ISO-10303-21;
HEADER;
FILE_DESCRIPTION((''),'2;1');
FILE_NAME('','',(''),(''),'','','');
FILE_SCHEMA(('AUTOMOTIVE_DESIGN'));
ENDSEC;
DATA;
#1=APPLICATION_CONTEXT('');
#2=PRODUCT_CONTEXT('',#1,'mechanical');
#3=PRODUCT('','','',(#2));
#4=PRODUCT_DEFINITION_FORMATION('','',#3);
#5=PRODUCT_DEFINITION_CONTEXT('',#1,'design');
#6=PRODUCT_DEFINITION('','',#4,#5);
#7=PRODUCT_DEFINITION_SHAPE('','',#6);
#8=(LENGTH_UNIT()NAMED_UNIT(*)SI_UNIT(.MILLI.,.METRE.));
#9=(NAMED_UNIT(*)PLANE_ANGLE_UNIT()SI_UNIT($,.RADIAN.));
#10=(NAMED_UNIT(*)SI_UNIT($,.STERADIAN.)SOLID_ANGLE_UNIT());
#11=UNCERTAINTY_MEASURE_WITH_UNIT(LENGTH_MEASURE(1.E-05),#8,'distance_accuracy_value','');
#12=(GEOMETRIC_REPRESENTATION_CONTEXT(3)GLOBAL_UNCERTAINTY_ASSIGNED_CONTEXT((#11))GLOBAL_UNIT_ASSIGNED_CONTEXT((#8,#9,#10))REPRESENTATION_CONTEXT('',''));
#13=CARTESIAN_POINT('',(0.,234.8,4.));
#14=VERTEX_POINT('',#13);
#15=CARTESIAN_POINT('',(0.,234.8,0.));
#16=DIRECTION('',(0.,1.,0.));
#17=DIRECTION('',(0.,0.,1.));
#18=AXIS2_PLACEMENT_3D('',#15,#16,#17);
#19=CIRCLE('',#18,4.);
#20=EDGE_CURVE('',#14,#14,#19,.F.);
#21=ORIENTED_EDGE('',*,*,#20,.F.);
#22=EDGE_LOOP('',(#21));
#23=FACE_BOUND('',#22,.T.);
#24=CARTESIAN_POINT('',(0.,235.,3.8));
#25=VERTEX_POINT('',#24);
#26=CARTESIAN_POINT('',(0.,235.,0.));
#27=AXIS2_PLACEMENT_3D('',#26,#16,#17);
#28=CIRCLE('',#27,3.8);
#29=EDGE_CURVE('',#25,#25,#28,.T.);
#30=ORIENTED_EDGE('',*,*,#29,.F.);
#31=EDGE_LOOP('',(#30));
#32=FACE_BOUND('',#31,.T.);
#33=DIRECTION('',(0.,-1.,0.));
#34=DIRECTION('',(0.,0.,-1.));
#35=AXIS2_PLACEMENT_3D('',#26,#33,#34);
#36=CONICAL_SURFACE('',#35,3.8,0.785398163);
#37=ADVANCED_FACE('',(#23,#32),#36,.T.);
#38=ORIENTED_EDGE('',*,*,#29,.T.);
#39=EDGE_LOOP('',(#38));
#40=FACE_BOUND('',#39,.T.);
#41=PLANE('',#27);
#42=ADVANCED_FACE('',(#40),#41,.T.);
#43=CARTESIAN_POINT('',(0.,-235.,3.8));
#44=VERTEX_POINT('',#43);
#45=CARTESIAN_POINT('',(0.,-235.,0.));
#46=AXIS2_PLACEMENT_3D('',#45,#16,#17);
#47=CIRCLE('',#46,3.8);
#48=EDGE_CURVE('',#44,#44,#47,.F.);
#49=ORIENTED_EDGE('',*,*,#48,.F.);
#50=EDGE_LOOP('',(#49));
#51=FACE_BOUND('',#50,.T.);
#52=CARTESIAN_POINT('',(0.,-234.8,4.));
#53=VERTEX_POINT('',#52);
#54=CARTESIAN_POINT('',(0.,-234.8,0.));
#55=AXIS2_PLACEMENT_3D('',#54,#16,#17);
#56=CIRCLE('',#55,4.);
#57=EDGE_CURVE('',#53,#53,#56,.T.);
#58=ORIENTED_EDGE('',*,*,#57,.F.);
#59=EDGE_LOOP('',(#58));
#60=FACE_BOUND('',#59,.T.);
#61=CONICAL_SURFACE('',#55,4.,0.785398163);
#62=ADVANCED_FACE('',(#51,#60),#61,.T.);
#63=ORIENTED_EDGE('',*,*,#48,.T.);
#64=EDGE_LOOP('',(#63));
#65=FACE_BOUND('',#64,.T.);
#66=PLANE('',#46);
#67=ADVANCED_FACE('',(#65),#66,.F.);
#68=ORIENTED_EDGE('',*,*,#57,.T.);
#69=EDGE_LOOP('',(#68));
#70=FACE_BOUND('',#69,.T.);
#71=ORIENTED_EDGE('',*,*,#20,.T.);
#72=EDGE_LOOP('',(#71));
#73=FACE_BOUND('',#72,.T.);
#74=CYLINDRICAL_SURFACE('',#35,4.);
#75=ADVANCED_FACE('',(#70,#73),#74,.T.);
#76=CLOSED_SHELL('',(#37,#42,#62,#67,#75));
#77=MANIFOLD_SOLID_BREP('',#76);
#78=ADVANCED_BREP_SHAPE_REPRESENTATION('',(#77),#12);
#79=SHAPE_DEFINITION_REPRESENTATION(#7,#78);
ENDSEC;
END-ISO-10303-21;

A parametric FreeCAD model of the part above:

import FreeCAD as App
import Part
import Sketcher

V = App.Vector
Q = App.Units.Quantity


def edges_at(feature, points):
    """Names of the edges that pass closest to the given points."""
    edges = feature.Shape.Edges
    near = lambda p: min(range(len(edges)), key=lambda i: edges[i].distToShape(Part.Vertex(*p))[0])
    return sorted({f"Edge{near(p) + 1}" for p in points})

doc = App.newDocument("Part")
params = doc.addObject("Spreadsheet::Sheet", "Params")
for row, (alias, value) in enumerate([
    ("sketch1_diameter", "8 mm"),
    ("pad1_length", "470 mm"),
    ("chamfer_size", "0.2 mm"),
], start=1):
    params.set(f"A{row}", alias)
    params.set(f"B{row}", "=" + value)
    params.setAlias(f"B{row}", alias)

body = doc.addObject("PartDesign::Body", "Body")

# Sketch on XZ plane
sketch1 = doc.addObject("Sketcher::SketchObject", "Sketch")
body.addObject(sketch1)
sketch1.AttachmentSupport = (doc.XZ_Plane, [""])
sketch1.MapMode = "FlatFace"
sketch1.addGeometry(Part.Circle(V(0, 0, 0), V(0, 0, 1), 4), False)
sketch1.addConstraint([
    Sketcher.Constraint("Coincident", 0, 3, -1, 1),
    Sketcher.Constraint("Diameter", 0, Q("8 mm")),
])
sketch1.setExpression("Constraints[1]", "Params.sketch1_diameter")
pad1 = doc.addObject("PartDesign::Pad", "Pad")
body.addObject(pad1)
pad1.Profile = sketch1
pad1.setExpression("Length", "Params.pad1_length")
pad1.Midplane = True
doc.recompute()

chamfer = doc.addObject("PartDesign::Chamfer", "Chamfer")
body.addObject(chamfer)
chamfer.Base = (pad1, edges_at(pad1, [(-4, -235, 0), (-4, 235, 0)]))
chamfer.setExpression("Size", "Params.chamfer_size")

doc.recompute()
